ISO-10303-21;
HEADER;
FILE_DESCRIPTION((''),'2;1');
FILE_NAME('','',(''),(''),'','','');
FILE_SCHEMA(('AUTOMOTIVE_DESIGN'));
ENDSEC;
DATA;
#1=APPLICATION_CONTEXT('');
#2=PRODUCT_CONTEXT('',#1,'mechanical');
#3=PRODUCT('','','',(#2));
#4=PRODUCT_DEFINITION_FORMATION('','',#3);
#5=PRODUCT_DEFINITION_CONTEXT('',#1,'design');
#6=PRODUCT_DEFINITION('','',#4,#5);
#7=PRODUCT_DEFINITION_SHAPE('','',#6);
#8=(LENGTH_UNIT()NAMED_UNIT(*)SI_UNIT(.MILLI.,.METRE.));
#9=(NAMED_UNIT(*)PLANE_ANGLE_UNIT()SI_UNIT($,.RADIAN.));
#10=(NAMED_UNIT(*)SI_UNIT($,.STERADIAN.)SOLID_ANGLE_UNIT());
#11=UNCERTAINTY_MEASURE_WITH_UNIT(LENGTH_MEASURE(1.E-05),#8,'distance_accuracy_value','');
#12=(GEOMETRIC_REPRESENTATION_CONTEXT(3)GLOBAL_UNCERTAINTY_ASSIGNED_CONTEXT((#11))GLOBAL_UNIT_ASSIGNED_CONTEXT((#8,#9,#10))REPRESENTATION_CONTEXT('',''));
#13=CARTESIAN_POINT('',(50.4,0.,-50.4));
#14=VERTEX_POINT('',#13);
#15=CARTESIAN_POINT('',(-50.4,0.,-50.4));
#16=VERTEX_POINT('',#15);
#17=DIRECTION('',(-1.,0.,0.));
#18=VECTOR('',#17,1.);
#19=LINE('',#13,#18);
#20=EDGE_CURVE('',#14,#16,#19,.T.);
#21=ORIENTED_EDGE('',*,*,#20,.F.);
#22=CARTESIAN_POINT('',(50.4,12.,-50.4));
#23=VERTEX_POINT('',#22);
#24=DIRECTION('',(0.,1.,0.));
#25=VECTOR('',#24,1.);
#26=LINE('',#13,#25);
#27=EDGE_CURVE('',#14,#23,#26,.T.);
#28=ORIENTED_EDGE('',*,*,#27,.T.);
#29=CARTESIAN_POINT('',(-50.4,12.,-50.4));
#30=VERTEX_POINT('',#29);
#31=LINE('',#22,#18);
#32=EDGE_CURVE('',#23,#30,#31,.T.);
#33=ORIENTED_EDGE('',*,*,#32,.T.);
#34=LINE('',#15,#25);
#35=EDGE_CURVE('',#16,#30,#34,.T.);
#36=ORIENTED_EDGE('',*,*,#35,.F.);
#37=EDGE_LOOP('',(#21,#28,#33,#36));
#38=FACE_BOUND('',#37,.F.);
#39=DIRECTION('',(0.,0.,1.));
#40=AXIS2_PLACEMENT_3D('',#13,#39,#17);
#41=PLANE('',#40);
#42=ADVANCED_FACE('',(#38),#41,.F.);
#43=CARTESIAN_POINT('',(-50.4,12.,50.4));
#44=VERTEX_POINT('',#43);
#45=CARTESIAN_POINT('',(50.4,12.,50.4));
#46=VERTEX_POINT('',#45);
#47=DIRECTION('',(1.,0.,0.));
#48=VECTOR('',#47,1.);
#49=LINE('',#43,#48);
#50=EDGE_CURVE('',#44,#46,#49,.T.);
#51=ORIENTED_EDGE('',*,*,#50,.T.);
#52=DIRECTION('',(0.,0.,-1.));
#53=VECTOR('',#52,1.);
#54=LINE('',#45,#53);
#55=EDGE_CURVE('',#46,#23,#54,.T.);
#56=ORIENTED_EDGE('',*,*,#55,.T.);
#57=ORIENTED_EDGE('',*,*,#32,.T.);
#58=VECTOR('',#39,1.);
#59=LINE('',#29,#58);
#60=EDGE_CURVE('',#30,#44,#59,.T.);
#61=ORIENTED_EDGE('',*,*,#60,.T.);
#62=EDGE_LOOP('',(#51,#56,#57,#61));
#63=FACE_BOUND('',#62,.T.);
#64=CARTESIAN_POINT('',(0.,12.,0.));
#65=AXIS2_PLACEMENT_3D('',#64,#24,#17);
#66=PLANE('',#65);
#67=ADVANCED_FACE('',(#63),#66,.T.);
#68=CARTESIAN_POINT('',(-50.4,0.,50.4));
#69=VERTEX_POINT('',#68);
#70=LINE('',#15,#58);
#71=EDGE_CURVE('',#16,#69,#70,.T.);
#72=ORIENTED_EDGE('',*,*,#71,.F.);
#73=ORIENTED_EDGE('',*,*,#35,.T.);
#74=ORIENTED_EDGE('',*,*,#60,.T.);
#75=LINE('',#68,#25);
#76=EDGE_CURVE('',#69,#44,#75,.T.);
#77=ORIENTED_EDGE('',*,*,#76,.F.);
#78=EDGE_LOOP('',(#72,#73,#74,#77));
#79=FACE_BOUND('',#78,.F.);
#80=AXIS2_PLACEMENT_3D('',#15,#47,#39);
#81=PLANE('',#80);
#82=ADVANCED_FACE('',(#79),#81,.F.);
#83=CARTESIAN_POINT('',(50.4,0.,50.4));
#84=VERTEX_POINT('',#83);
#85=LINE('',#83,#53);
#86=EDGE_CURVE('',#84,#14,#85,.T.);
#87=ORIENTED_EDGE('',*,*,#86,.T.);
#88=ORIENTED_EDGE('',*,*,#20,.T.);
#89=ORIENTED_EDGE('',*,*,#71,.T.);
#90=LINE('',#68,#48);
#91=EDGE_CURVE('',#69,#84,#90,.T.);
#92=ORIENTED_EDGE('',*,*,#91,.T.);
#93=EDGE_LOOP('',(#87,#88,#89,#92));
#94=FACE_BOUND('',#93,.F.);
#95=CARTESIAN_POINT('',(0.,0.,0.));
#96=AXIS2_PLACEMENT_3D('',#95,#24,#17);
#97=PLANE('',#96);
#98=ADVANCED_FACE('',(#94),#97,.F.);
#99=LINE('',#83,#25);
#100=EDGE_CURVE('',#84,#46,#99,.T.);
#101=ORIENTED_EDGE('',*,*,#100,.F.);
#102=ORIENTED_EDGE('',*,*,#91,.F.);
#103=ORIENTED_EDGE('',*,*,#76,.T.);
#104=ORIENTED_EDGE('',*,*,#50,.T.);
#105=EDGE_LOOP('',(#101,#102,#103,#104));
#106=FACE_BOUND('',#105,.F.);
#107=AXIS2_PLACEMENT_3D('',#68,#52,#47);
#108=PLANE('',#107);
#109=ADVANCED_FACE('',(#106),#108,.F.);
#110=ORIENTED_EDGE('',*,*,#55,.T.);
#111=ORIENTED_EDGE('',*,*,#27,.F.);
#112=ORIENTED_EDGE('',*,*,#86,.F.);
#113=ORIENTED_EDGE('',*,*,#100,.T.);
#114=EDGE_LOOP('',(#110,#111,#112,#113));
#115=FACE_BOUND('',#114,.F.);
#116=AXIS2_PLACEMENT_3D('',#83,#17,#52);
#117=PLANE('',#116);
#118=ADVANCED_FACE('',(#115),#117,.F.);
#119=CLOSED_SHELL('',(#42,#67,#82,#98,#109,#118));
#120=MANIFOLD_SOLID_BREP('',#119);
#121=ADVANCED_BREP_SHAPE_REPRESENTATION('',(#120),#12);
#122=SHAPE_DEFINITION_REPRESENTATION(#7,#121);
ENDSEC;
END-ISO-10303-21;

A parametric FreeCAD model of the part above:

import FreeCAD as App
import Part
import Sketcher

V = App.Vector
Q = App.Units.Quantity

doc = App.newDocument("Part")
body = doc.addObject("PartDesign::Body", "Body")

sketch1 = body.newObject("Sketcher::SketchObject", "Sketch")
sketch1.AttachmentSupport = (doc.getObject("XZ_Plane"), [""])
sketch1.MapMode = "FlatFace"
sketch1.addGeometry(Part.LineSegment(V(-50, -50, 0), V(-50, 50, 0)), False)
sketch1.addGeometry(Part.LineSegment(V(-50, 50, 0), V(50, 50, 0)), False)
sketch1.addGeometry(Part.LineSegment(V(50, 50, 0), V(50, -50, 0)), False)
sketch1.addGeometry(Part.LineSegment(V(50, -50, 0), V(-50, -50, 0)), False)
sketch1.addConstraint(Sketcher.Constraint("Coincident", 0, 2, 1, 1))
sketch1.addConstraint(Sketcher.Constraint("Coincident", 1, 2, 2, 1))
sketch1.addConstraint(Sketcher.Constraint("Coincident", 2, 2, 3, 1))
sketch1.addConstraint(Sketcher.Constraint("Coincident", 3, 2, 0, 1))
sketch1.addConstraint(Sketcher.Constraint("Vertical", 0))
sketch1.addConstraint(Sketcher.Constraint("Horizontal", 1))
sketch1.addConstraint(Sketcher.Constraint("Vertical", 2))
sketch1.addConstraint(Sketcher.Constraint("Horizontal", 3))
sketch1.addConstraint(Sketcher.Constraint("Symmetric", 0, 2, 2, 2, -1, 1))
sketch1.addConstraint(Sketcher.Constraint("Equal", 3, 0))
sketch1.addConstraint(Sketcher.Constraint("DistanceX", 1, 1, 1, 2, Q("100.8 mm")))
pad1 = body.newObject("PartDesign::Pad", "Pad")
pad1.Profile = sketch1
pad1.Length = 12
pad1.Reversed = True

doc.recompute()
